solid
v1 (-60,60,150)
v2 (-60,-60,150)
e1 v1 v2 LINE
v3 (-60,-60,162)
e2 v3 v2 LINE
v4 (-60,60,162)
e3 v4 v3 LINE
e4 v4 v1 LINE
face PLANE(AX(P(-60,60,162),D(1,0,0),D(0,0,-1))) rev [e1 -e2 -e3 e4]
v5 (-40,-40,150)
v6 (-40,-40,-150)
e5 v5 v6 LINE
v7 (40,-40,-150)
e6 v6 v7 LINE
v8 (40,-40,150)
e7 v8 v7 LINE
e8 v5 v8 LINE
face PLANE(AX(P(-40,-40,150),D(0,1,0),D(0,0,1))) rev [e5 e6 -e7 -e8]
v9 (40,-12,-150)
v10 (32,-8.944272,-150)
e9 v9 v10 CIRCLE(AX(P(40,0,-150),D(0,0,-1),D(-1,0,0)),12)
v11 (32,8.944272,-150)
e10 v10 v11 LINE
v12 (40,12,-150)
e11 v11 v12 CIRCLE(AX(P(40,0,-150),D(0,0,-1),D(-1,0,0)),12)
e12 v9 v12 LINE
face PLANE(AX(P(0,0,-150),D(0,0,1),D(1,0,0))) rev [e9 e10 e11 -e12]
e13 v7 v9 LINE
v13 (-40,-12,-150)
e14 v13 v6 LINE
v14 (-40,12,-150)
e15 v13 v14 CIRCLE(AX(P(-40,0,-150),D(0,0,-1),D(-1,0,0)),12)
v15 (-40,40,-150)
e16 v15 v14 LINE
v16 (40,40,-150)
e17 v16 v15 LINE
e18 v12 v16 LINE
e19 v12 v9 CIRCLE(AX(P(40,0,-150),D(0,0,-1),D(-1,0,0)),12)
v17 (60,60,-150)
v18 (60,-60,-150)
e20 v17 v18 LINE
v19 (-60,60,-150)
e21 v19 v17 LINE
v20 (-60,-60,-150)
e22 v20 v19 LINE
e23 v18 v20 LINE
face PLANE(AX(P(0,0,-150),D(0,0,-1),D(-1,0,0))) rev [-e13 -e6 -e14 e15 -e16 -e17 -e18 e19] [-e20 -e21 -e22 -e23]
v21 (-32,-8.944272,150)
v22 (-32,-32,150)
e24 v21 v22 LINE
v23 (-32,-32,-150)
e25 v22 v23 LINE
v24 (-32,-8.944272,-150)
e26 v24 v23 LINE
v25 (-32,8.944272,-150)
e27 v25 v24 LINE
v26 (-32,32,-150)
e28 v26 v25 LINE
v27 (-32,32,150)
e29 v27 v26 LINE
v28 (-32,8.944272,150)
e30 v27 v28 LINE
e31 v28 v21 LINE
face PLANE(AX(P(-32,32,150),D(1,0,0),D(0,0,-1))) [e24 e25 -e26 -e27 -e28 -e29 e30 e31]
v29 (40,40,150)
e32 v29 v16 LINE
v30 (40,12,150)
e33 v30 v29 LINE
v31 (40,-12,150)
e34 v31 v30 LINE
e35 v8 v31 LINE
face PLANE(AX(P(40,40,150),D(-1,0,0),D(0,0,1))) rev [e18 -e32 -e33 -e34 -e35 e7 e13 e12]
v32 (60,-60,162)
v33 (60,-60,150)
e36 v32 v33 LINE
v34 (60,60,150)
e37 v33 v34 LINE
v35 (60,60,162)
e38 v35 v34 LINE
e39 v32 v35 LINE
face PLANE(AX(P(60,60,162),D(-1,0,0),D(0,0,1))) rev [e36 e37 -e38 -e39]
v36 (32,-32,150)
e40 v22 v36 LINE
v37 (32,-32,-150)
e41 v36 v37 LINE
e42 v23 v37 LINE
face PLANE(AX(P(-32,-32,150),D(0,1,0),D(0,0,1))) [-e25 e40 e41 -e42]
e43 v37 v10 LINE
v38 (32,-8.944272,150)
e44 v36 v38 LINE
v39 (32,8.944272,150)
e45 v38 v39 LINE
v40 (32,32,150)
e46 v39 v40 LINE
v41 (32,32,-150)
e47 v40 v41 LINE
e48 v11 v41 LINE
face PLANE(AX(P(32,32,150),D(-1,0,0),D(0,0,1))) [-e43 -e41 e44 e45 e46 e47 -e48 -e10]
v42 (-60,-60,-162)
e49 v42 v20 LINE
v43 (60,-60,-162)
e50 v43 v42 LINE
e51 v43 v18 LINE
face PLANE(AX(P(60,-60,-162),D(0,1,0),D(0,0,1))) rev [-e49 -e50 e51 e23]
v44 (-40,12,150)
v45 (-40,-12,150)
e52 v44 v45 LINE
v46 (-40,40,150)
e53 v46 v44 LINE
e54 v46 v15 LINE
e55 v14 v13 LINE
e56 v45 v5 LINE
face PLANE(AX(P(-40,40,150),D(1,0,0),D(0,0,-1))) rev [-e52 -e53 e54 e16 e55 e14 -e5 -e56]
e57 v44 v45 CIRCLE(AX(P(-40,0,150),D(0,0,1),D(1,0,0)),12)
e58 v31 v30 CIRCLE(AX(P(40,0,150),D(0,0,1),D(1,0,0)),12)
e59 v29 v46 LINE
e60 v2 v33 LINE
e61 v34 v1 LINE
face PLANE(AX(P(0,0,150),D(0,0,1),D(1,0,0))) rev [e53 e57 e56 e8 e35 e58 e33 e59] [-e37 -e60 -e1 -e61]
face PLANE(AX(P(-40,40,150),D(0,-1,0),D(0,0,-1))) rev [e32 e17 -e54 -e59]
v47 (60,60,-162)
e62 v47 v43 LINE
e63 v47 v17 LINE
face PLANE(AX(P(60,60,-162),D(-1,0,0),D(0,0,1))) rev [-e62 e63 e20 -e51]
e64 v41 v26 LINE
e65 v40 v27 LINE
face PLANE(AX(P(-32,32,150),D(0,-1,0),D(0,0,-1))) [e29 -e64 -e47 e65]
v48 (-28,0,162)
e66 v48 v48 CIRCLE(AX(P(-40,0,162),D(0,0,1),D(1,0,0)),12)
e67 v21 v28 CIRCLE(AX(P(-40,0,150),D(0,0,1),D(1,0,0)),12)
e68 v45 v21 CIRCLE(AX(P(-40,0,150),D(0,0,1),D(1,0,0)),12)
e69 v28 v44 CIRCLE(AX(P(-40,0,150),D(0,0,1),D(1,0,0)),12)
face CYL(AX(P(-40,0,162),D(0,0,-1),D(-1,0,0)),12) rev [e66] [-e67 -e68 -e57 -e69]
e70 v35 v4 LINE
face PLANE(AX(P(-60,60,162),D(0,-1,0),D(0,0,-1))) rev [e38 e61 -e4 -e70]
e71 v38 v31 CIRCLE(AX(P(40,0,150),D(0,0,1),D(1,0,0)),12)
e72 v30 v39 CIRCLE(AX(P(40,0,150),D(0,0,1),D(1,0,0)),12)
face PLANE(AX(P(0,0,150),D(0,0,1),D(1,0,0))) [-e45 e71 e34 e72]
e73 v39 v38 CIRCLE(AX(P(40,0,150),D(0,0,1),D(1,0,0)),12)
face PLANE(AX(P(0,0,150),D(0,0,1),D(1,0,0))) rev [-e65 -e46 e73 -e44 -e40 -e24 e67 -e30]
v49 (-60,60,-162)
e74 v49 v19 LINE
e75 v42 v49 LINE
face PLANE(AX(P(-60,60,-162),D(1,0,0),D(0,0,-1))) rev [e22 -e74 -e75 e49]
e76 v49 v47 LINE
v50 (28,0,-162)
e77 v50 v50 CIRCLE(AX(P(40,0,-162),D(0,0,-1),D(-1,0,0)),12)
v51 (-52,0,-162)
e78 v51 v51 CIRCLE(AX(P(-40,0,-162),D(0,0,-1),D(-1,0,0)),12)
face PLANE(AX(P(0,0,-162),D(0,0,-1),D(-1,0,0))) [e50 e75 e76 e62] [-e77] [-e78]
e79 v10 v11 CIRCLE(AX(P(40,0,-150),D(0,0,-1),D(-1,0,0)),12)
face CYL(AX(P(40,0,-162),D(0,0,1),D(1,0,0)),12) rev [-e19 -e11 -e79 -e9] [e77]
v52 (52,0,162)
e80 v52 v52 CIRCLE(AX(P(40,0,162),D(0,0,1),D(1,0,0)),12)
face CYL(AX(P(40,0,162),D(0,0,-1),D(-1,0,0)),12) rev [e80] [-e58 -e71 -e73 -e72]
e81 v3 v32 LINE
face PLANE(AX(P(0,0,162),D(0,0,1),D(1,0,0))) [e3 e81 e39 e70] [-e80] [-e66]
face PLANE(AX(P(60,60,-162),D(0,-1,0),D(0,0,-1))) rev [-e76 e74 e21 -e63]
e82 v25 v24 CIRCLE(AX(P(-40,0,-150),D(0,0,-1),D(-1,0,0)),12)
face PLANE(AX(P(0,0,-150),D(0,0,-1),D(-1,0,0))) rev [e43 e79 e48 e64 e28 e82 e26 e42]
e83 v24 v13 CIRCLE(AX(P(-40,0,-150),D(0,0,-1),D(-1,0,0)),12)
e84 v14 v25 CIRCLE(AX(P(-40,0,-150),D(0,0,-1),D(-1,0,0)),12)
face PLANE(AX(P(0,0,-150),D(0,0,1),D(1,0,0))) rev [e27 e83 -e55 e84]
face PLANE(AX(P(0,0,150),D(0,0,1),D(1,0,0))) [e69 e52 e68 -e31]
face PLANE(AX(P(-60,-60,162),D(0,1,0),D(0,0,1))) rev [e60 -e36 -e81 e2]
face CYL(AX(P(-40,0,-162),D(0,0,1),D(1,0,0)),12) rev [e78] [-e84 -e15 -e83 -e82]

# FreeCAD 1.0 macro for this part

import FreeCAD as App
import Part
import Sketcher
Q = App.Units.Quantity


def add_polygon(sketch, points):
    """Adds a closed chain of lines whose ends are joined by coincident constraints."""
    first, n = sketch.GeometryCount, len(points)
    for a, b in zip(points, points[1:] + points[:1]):
        sketch.addGeometry(Part.LineSegment(App.Vector(*a, 0), App.Vector(*b, 0)), False)
    for i in range(n):
        sketch.addConstraint(Sketcher.Constraint("Coincident", first + i, 2, first + (i + 1) % n, 1))

doc = App.newDocument("Part")
params = doc.addObject("Spreadsheet::Sheet", "Params")
for row, (alias, value) in enumerate([
    ("sketch1_width", "80 mm"),
    ("sketch1_width2", "64 mm"),
    ("pad1_length", "300 mm"),
    ("sketch2_diameter", "24 mm"),
    ("sketch2_width", "120 mm"),
    ("pad2_length", "12 mm"),
    ("sketch3_diameter", "24 mm"),
    ("sketch3_width", "120 mm"),
    ("pad3_length", "12 mm"),
], start=1):
    params.set(f"A{row}", alias)
    params.set(f"B{row}", "=" + value)
    params.setAlias(f"B{row}", alias)

body = doc.addObject("PartDesign::Body", "Body")

sketch1 = body.newObject("Sketcher::SketchObject", "Sketch")
sketch1.AttachmentSupport = (doc.getObject("XY_Plane"), [""])
sketch1.MapMode = "FlatFace"
add_polygon(sketch1, [(-40, 40), (-40, -40), (40, -40), (40, 40)])
add_polygon(sketch1, [(32, -32), (-32, -32), (-32, 32), (32, 32)])
sketch1.addConstraint([
    Sketcher.Constraint("Vertical", 0),
    Sketcher.Constraint("Horizontal", 1),
    Sketcher.Constraint("Vertical", 2),
    Sketcher.Constraint("Horizontal", 3),
    Sketcher.Constraint("Horizontal", 4),
    Sketcher.Constraint("Vertical", 5),
    Sketcher.Constraint("Horizontal", 6),
    Sketcher.Constraint("Vertical", 7),
    Sketcher.Constraint("Symmetric", 0, 2, 2, 2, -1, 1),
    Sketcher.Constraint("Symmetric", 4, 2, 6, 2, -1, 1),
    Sketcher.Constraint("Equal", 3, 0),
    Sketcher.Constraint("Equal", 6, 5),
    Sketcher.Constraint("DistanceX", 1, 1, 1, 2, Q("80 mm")),
    Sketcher.Constraint("DistanceX", 4, 2, 4, 1, Q("64 mm")),
])
sketch1.setExpression("Constraints[20]", "Params.sketch1_width")
sketch1.setExpression("Constraints[21]", "Params.sketch1_width2")
pad1 = body.newObject("PartDesign::Pad", "Pad")
pad1.Profile = sketch1
pad1.setExpression("Length", "Params.pad1_length")
pad1.Midplane = True

sketch2 = body.newObject("Sketcher::SketchObject", "Sketch001")
sketch2.AttachmentSupport = (doc.getObject("XY_Plane"), [""])
sketch2.MapMode = "FlatFace"
sketch2.AttachmentOffset = App.Placement(App.Vector(0, 0, 150), App.Rotation())
add_polygon(sketch2, [(-60, 60), (-60, -60), (60, -60), (60, 60)])
sketch2.addGeometry(Part.Circle(App.Vector(-40, 0, 0), App.Vector(0, 0, 1), 12), False)
sketch2.addGeometry(Part.Circle(App.Vector(40, 0, 0), App.Vector(0, 0, 1), 12), False)
sketch2.addConstraint([
    Sketcher.Constraint("Vertical", 0),
    Sketcher.Constraint("Horizontal", 1),
    Sketcher.Constraint("Vertical", 2),
    Sketcher.Constraint("Horizontal", 3),
    Sketcher.Constraint("Equal", 4, 5),
    Sketcher.Constraint("Symmetric", 4, 3, 5, 3, -1, 1),
    Sketcher.Constraint("Symmetric", 0, 2, 2, 2, -1, 1),
    Sketcher.Constraint("PointOnObject", 4, 3, -1),
    Sketcher.Constraint("Equal", 3, 0),
    Sketcher.Constraint("Diameter", 4, Q("24 mm")),
    Sketcher.Constraint("DistanceX", 1, 1, 1, 2, Q("120 mm")),
    Sketcher.Constraint("DistanceX", 4, 3, -1, 1, Q("40 mm")),
])
sketch2.setExpression("Constraints[13]", "Params.sketch2_diameter")
sketch2.setExpression("Constraints[14]", "Params.sketch2_width")
pad2 = body.newObject("PartDesign::Pad", "Pad001")
pad2.Profile = sketch2
pad2.setExpression("Length", "Params.pad2_length")

sketch3 = body.newObject("Sketcher::SketchObject", "Sketch002")
sketch3.AttachmentSupport = (doc.getObject("XY_Plane"), [""])
sketch3.MapMode = "FlatFace"
sketch3.AttachmentOffset = App.Placement(App.Vector(0, 0, -162), App.Rotation())
add_polygon(sketch3, [(60, 60), (60, -60), (-60, -60), (-60, 60)])
sketch3.addGeometry(Part.Circle(App.Vector(40, 0, 0), App.Vector(0, 0, 1), 12), False)
sketch3.addGeometry(Part.Circle(App.Vector(-40, 0, 0), App.Vector(0, 0, 1), 12), False)
sketch3.addConstraint([
    Sketcher.Constraint("Vertical", 0),
    Sketcher.Constraint("Horizontal", 1),
    Sketcher.Constraint("Vertical", 2),
    Sketcher.Constraint("Horizontal", 3),
    Sketcher.Constraint("Equal", 4, 5),
    Sketcher.Constraint("Symmetric", 4, 3, 5, 3, -1, 1),
    Sketcher.Constraint("Symmetric", 0, 2, 2, 2, -1, 1),
    Sketcher.Constraint("PointOnObject", 4, 3, -1),
    Sketcher.Constraint("Equal", 3, 0),
    Sketcher.Constraint("Diameter", 4, Q("24 mm")),
    Sketcher.Constraint("DistanceX", 1, 2, 1, 1, Q("120 mm")),
    Sketcher.Constraint("DistanceX", -1, 1, 4, 3, Q("40 mm")),
])
sketch3.setExpression("Constraints[13]", "Params.sketch3_diameter")
sketch3.setExpression("Constraints[14]", "Params.sketch3_width")
pad3 = body.newObject("PartDesign::Pad", "Pad002")
pad3.Profile = sketch3
pad3.setExpression("Length", "Params.pad3_length")

doc.recompute()
